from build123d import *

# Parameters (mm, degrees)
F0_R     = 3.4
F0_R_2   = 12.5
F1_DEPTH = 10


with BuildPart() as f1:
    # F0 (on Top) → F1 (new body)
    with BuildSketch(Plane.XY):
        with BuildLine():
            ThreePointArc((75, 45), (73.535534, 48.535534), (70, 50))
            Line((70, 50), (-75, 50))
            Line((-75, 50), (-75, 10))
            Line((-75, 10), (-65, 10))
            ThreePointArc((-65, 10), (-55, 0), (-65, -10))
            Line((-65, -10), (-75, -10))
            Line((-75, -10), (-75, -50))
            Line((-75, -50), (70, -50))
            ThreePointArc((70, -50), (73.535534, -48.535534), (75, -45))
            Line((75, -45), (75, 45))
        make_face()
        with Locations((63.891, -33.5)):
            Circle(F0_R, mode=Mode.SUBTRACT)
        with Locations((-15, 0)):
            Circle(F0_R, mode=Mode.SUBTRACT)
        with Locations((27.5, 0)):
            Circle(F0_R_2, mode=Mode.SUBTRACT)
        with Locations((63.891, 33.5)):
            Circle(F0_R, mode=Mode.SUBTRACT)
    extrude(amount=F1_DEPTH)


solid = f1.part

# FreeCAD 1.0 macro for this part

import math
import FreeCAD as App
import Part
import Sketcher
Q = App.Units.Quantity

doc = App.newDocument("Part")
body = doc.addObject("PartDesign::Body", "Body")

sketch1 = body.newObject("Sketcher::SketchObject", "Sketch")
sketch1.AttachmentSupport = (doc.getObject("XY_Plane"), [""])
sketch1.MapMode = "FlatFace"
sketch1.addGeometry([
    Part.ArcOfCircle(Part.Circle(App.Vector(70, 45, 0), App.Vector(0, 0, 1), 5), math.radians(0), math.radians(90)),
    Part.LineSegment(App.Vector(70, 50, 0), App.Vector(-75, 50, 0)),
    Part.LineSegment(App.Vector(-75, 50, 0), App.Vector(-75, 10, 0)),
    Part.LineSegment(App.Vector(-75, 10, 0), App.Vector(-65, 10, 0)),
    Part.ArcOfCircle(Part.Circle(App.Vector(-65, 0, 0), App.Vector(0, 0, 1), 10), math.radians(-90), math.radians(90)),
    Part.LineSegment(App.Vector(-65, -10, 0), App.Vector(-75, -10, 0)),
    Part.LineSegment(App.Vector(-75, -10, 0), App.Vector(-75, -50, 0)),
    Part.LineSegment(App.Vector(-75, -50, 0), App.Vector(70, -50, 0)),
    Part.ArcOfCircle(Part.Circle(App.Vector(70, -45, 0), App.Vector(0, 0, 1), 5), math.radians(-90), math.radians(0)),
    Part.LineSegment(App.Vector(75, -45, 0), App.Vector(75, 45, 0)),
    Part.Circle(App.Vector(63.9, -33.5, 0), App.Vector(0, 0, 1), 3.4),
    Part.Circle(App.Vector(-15, 0, 0), App.Vector(0, 0, 1), 3.4),
    Part.Circle(App.Vector(27.5, 0, 0), App.Vector(0, 0, 1), 12.5),
    Part.Circle(App.Vector(63.9, 33.5, 0), App.Vector(0, 0, 1), 3.4),
], False)
sketch1.addConstraint([
    Sketcher.Constraint("Tangent", 0, 2, 1, 1),
    Sketcher.Constraint("Coincident", 1, 2, 2, 1),
    Sketcher.Constraint("Coincident", 2, 2, 3, 1),
    Sketcher.Constraint("Tangent", 3, 2, 4, 2),
    Sketcher.Constraint("Tangent", 4, 1, 5, 1),
    Sketcher.Constraint("Coincident", 5, 2, 6, 1),
    Sketcher.Constraint("Coincident", 6, 2, 7, 1),
    Sketcher.Constraint("Tangent", 7, 2, 8, 1),
    Sketcher.Constraint("Tangent", 8, 2, 9, 1),
    Sketcher.Constraint("Tangent", 9, 2, 0, 1),
    Sketcher.Constraint("Horizontal", 1),
    Sketcher.Constraint("Vertical", 2),
    Sketcher.Constraint("Horizontal", 3),
    Sketcher.Constraint("Horizontal", 5),
    Sketcher.Constraint("Vertical", 6),
    Sketcher.Constraint("Horizontal", 7),
    Sketcher.Constraint("Vertical", 9),
    Sketcher.Constraint("Equal", 0, 8),
    Sketcher.Constraint("Equal", 10, 11),
    Sketcher.Constraint("Equal", 11, 13),
    Sketcher.Constraint("Symmetric", 10, 3, 13, 3, -1),
    Sketcher.Constraint("Symmetric", 2, 2, 5, 2, -1),
    Sketcher.Constraint("PointOnObject", 11, 3, -1),
    Sketcher.Constraint("PointOnObject", 12, 3, -1),
    Sketcher.Constraint("Equal", 2, 6),
    Sketcher.Constraint("Diameter", 12, Q("25 mm")),
    Sketcher.Constraint("Radius", 0, Q("5 mm")),
    Sketcher.Constraint("Radius", 4, Q("10 mm")),
    Sketcher.Constraint("Diameter", 10, Q("6.8 mm")),
    Sketcher.Constraint("DistanceX", 1, 2, 1, 1, Q("145 mm")),
    Sketcher.Constraint("DistanceX", 3, 1, 3, 2, Q("10 mm")),
    Sketcher.Constraint("DistanceY", 2, 2, 2, 1, Q("40 mm")),
    Sketcher.Constraint("DistanceX", -1, 1, 0, 3, Q("70 mm")),
    Sketcher.Constraint("DistanceX", 11, 3, -1, 1, Q("15 mm")),
    Sketcher.Constraint("DistanceY", 10, 3, 13, 3, Q("67 mm")),
    Sketcher.Constraint("DistanceX", -1, 1, 12, 3, Q("27.5 mm")),
    Sketcher.Constraint("DistanceX", -1, 1, 10, 3, Q("63.891 mm")),
])
pad1 = body.newObject("PartDesign::Pad", "Pad")
pad1.Profile = sketch1
pad1.Length = 10

doc.recompute()
